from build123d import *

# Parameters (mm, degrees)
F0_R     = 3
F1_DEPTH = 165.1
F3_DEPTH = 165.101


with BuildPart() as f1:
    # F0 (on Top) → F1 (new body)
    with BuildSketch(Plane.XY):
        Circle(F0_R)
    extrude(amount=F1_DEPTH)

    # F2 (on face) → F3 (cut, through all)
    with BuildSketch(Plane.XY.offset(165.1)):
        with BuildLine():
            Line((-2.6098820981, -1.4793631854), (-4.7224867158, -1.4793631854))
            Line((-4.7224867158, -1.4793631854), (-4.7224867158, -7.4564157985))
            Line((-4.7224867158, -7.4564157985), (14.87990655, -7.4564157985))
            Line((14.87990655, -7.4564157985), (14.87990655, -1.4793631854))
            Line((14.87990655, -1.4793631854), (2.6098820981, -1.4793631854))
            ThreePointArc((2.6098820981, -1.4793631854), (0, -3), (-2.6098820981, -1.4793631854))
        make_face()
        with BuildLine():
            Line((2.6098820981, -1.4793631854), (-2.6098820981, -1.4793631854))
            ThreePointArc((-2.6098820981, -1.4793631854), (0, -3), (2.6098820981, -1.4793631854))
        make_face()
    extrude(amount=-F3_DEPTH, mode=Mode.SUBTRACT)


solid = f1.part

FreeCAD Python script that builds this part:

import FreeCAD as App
import Part
import Sketcher

V = App.Vector
Q = App.Units.Quantity

doc = App.newDocument("Part")
params = doc.addObject("Spreadsheet::Sheet", "Params")
for row, (alias, value) in enumerate([
    ("sketch1_diameter", "6 mm"),
    ("pad1_length", "165.1 mm"),
], start=1):
    params.set(f"A{row}", alias)
    params.set(f"B{row}", "=" + value)
    params.setAlias(f"B{row}", alias)

body = doc.addObject("PartDesign::Body", "Body")

# Sketch on XY plane
sketch1 = body.newObject("Sketcher::SketchObject", "Sketch")
sketch1.AttachmentSupport = (doc.getObject("XY_Plane"), [""])
sketch1.MapMode = "FlatFace"
sketch1.addGeometry(Part.Circle(V(0, 0, 0), V(0, 0, 1), 3), False)
sketch1.addConstraint(Sketcher.Constraint("Coincident", 0, 3, -1, 1))
sketch1.addConstraint(Sketcher.Constraint("Diameter", 0, Q("6 mm")))
sketch1.setExpression("Constraints[1]", "Params.sketch1_diameter")
pad1 = body.newObject("PartDesign::Pad", "Pad")
pad1.Profile = sketch1
pad1.setExpression("Length", "Params.pad1_length")

# Sketch on XY plane
sketch2 = body.newObject("Sketcher::SketchObject", "Sketch001")
sketch2.AttachmentSupport = (doc.getObject("XY_Plane"), [""])
sketch2.MapMode = "FlatFace"
sketch2.AttachmentOffset = App.Placement(V(0, 0, 165.1), App.Rotation())
sketch2.addGeometry(Part.LineSegment(V(-4.722487, -1.479363, 0), V(-4.722487, -7.456416, 0)), False)
sketch2.addGeometry(Part.LineSegment(V(-4.722487, -7.456416, 0), V(14.879907, -7.456416, 0)), False)
sketch2.addGeometry(Part.LineSegment(V(14.879907, -7.456416, 0), V(14.879907, -1.479363, 0)), False)
sketch2.addGeometry(Part.LineSegment(V(14.879907, -1.479363, 0), V(-4.722487, -1.479363, 0)), False)
sketch2.addConstraint(Sketcher.Constraint("Coincident", 0, 2, 1, 1))
sketch2.addConstraint(Sketcher.Constraint("Coincident", 1, 2, 2, 1))
sketch2.addConstraint(Sketcher.Constraint("Coincident", 2, 2, 3, 1))
sketch2.addConstraint(Sketcher.Constraint("Coincident", 3, 2, 0, 1))
sketch2.addConstraint(Sketcher.Constraint("Vertical", 0))
sketch2.addConstraint(Sketcher.Constraint("Horizontal", 1))
sketch2.addConstraint(Sketcher.Constraint("Vertical", 2))
sketch2.addConstraint(Sketcher.Constraint("Horizontal", 3))
sketch2.addConstraint(Sketcher.Constraint("DistanceX", 1, 1, 1, 2, Q("19.602393 mm")))
sketch2.addConstraint(Sketcher.Constraint("DistanceY", 0, 2, 0, 1, Q("5.977053 mm")))
sketch2.addConstraint(Sketcher.Constraint("DistanceX", 0, 2, -1, 1, Q("4.722487 mm")))
sketch2.addConstraint(Sketcher.Constraint("DistanceY", 0, 2, -1, 1, Q("7.456416 mm")))
pocket1 = body.newObject("PartDesign::Pocket", "Pocket")
pocket1.Profile = sketch2
pocket1.Type = "ThroughAll"

doc.recompute()
